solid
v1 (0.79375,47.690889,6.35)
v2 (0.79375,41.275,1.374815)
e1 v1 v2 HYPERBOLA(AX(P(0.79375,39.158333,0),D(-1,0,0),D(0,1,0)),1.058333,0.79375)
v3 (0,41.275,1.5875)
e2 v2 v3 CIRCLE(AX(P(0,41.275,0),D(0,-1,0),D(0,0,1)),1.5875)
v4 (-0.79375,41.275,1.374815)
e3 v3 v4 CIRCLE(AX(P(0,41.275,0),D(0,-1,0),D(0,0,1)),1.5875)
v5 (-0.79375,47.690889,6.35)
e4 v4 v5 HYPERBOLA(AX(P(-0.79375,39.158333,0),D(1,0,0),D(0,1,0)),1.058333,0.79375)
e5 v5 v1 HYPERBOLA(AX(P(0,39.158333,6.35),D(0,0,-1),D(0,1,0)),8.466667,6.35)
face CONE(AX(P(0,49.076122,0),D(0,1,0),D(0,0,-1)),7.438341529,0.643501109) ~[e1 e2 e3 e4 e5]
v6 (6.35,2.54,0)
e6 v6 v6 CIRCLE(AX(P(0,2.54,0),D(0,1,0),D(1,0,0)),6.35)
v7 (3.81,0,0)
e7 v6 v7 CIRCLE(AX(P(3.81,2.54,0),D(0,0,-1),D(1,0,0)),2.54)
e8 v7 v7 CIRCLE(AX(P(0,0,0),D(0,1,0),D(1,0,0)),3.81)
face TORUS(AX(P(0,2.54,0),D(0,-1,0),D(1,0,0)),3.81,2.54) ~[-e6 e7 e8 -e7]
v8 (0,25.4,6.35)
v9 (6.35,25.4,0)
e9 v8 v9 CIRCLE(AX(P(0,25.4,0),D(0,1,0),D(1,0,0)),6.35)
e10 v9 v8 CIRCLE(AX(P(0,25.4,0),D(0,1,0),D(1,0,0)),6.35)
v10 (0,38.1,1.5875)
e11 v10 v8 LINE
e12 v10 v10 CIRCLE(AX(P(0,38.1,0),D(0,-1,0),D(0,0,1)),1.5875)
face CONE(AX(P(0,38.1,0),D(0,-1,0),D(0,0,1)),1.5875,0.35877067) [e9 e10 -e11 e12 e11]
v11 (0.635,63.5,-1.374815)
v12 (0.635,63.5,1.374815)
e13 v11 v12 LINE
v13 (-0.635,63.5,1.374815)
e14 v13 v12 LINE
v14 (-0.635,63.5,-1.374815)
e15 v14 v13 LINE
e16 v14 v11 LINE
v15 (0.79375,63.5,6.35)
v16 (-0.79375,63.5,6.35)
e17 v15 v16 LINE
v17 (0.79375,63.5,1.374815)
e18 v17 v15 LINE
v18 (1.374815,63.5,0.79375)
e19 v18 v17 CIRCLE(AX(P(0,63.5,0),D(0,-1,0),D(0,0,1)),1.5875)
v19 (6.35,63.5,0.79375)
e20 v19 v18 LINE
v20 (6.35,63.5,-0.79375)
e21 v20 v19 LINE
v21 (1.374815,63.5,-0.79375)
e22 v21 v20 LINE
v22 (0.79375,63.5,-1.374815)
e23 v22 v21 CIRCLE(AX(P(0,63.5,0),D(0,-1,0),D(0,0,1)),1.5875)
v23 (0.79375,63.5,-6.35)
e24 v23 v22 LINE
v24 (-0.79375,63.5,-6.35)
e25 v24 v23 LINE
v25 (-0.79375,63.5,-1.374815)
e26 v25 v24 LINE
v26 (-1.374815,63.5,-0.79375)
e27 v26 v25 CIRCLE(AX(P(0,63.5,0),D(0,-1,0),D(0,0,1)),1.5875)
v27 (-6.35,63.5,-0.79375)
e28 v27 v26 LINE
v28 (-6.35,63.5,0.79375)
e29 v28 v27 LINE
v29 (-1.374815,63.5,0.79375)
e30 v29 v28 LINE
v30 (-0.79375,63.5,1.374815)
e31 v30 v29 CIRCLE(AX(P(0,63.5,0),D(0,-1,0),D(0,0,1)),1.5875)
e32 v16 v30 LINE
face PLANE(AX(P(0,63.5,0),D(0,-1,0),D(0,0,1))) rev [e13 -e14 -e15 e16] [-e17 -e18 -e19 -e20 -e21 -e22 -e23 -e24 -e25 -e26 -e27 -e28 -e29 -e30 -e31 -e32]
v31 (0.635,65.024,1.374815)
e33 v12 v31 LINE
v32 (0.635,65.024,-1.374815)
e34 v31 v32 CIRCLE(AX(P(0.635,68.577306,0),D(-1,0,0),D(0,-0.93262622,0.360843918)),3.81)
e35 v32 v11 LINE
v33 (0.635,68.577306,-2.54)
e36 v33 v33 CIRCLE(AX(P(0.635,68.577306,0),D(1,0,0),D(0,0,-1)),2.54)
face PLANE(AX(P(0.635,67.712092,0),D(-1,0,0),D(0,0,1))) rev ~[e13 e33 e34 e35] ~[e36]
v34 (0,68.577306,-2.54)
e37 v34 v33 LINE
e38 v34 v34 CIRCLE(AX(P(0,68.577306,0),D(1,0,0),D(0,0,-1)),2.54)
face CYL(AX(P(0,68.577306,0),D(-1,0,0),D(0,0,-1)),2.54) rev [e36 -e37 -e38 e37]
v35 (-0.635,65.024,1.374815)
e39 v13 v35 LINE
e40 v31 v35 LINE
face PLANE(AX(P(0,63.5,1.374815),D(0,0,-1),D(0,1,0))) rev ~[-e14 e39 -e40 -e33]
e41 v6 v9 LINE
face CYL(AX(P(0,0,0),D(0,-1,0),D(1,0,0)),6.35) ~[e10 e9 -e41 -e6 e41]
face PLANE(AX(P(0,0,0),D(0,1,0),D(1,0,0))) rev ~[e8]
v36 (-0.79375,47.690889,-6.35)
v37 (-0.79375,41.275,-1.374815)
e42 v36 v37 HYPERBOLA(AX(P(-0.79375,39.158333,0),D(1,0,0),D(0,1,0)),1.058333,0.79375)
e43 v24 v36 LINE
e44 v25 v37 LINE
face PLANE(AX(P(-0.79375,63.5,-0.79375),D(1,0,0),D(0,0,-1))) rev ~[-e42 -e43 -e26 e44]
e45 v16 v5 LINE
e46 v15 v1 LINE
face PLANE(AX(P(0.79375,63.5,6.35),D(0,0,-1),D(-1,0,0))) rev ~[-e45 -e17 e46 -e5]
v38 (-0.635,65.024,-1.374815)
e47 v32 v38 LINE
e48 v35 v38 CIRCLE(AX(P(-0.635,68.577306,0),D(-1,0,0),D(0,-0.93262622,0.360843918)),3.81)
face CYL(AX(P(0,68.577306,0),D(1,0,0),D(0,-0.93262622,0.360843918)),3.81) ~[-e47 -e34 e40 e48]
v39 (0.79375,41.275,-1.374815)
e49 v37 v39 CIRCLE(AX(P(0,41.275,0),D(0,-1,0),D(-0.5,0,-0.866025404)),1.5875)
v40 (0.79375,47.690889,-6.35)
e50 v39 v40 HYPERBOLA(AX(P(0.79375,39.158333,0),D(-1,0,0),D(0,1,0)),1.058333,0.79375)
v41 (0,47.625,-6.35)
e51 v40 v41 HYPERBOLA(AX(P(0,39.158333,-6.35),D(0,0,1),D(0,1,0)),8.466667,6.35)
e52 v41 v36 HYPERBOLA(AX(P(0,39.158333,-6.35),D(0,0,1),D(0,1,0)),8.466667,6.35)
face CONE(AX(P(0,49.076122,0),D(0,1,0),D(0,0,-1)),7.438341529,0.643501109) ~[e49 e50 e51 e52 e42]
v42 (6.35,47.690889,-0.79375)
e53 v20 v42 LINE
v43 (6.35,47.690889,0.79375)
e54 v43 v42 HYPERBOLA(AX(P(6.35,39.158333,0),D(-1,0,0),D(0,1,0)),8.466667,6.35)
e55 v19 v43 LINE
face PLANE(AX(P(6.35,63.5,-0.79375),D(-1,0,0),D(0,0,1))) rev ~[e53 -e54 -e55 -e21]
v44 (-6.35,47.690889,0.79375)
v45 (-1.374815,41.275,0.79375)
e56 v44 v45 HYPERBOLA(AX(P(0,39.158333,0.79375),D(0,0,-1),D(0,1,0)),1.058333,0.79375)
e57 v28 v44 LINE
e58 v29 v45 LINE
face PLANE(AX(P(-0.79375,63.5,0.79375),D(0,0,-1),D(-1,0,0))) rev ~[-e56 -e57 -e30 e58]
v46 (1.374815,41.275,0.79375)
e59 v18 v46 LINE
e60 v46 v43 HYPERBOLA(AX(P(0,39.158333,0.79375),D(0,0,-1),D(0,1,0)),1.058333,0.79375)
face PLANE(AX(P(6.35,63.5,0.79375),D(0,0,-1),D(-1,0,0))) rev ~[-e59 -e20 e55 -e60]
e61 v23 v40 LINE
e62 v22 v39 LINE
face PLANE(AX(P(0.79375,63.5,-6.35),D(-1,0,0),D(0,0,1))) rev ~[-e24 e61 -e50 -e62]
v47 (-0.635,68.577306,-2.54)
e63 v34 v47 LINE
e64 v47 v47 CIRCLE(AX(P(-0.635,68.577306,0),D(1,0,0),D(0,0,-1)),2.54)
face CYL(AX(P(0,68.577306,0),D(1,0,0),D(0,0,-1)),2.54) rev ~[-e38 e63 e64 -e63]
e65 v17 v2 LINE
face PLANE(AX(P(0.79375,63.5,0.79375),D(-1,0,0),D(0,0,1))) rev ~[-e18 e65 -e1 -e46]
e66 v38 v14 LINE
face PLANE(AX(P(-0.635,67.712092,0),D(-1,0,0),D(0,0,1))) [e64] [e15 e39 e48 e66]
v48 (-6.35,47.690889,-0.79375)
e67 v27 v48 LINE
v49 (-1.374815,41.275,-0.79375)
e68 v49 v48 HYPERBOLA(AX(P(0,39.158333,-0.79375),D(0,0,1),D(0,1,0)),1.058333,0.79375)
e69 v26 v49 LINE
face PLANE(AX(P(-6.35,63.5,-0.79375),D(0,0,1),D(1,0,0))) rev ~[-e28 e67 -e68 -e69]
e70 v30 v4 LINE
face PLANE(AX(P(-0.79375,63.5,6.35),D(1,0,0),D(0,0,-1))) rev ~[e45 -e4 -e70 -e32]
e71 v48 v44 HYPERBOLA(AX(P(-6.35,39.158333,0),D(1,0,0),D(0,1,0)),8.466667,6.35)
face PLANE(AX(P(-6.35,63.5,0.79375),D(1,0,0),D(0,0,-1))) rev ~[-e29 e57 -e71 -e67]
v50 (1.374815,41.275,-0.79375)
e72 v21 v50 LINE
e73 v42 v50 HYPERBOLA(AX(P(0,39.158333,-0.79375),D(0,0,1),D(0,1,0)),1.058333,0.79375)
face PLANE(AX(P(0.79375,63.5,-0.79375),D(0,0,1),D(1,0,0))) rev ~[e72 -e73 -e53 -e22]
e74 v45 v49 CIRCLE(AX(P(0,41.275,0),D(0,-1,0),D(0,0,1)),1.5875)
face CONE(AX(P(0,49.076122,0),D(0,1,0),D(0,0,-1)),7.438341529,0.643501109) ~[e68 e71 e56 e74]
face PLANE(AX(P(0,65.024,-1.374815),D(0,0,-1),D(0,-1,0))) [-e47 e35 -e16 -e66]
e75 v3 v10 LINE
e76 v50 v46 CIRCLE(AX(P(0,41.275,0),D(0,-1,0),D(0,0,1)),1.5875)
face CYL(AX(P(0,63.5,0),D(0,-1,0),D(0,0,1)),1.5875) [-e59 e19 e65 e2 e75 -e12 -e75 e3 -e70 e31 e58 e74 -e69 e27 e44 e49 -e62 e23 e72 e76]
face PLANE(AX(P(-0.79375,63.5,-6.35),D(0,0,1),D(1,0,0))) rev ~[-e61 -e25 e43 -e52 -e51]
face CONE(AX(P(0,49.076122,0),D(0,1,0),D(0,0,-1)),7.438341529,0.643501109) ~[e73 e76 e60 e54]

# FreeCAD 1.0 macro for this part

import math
import FreeCAD as App
import Part
import Sketcher
Q = App.Units.Quantity


def edges_at(feature, points):
    """Names of the edges that pass closest to the given points."""
    edges = feature.Shape.Edges
    near = lambda p: min(range(len(edges)), key=lambda i: edges[i].distToShape(Part.Vertex(*p))[0])
    return sorted({f"Edge{near(p) + 1}" for p in points})


def add_polygon(sketch, points):
    """Adds a closed chain of lines whose ends are joined by coincident constraints."""
    first, n = sketch.GeometryCount, len(points)
    for a, b in zip(points, points[1:] + points[:1]):
        sketch.addGeometry(Part.LineSegment(App.Vector(*a, 0), App.Vector(*b, 0)), False)
    for i in range(n):
        sketch.addConstraint(Sketcher.Constraint("Coincident", first + i, 2, first + (i + 1) % n, 1))

doc = App.newDocument("Part")
body = doc.addObject("PartDesign::Body", "Body")

sketch1 = body.newObject("Sketcher::SketchObject", "Sketch")
sketch1.AttachmentSupport = (doc.getObject("XZ_Plane"), [""])
sketch1.MapMode = "FlatFace"
sketch1.addGeometry(Part.Circle(App.Vector(0, 0, 0), App.Vector(0, 0, 1), 6), False)
sketch1.addConstraint(Sketcher.Constraint("Coincident", 0, 3, -1, 1))
sketch1.addConstraint(Sketcher.Constraint("Diameter", 0, Q("0.5 in")))
pad1 = body.newObject("PartDesign::Pad", "Pad")
pad1.Profile = sketch1
pad1.Length = Q("1 in")
pad1.Reversed = True
doc.recompute()

fillet = body.newObject("PartDesign::Fillet", "Fillet")
fillet.Base = (pad1, edges_at(pad1, [(-6.35, 0, 0)]))
fillet.Radius = Q("0.1 in")

sketch2 = body.newObject("Sketcher::SketchObject", "Sketch001")
sketch2.AttachmentSupport = (doc.getObject("YZ_Plane"), [""])
sketch2.MapMode = "FlatFace"
add_polygon(sketch2, [(25.4, 6.3), (25.4, 0), (63.5, 0), (63.5, 1.6), (38.1, 1.6)])
sketch2.addConstraint(Sketcher.Constraint("Vertical", 0))
sketch2.addConstraint(Sketcher.Constraint("Horizontal", 1))
sketch2.addConstraint(Sketcher.Constraint("Vertical", 2))
sketch2.addConstraint(Sketcher.Constraint("Horizontal", 3))
sketch2.addConstraint(Sketcher.Constraint("PointOnObject", 0, 2, -1))
sketch2.addConstraint(Sketcher.Constraint("DistanceX", 3, 2, 3, 1, Q("1 in")))
sketch2.addConstraint(Sketcher.Constraint("DistanceX", 1, 1, 1, 2, Q("1.5 in")))
sketch2.addConstraint(Sketcher.Constraint("DistanceX", -1, 1, 0, 2, Q("1 in")))
sketch2.addConstraint(Sketcher.Constraint("DistanceY", 0, 2, 0, 1, Q("0.25 in")))
sketch2.addConstraint(Sketcher.Constraint("DistanceY", 2, 1, 2, 2, Q("0.0625 in")))
revolution = body.newObject("PartDesign::Revolution", "Revolution")
revolution.Profile = sketch2
revolution.ReferenceAxis = (sketch2, ["H_Axis"])
revolution.Angle = 360

sketch3 = body.newObject("Sketcher::SketchObject", "Sketch002")
sketch3.AttachmentSupport = (doc.getObject("XZ_Plane"), [""])
sketch3.MapMode = "FlatFace"
sketch3.AttachmentOffset = App.Placement(App.Vector(0, 0, -2.5 * 25.4), App.Rotation())
add_polygon(sketch3, [(-0.8, -6.3), (-0.8, -0.8), (-6.3, -0.8), (-6.3, 0.8), (-0.8, 0.8), (-0.8, 6.3), (0.8, 6.3), (0.8, 0.8), (6.3, 0.8), (6.3, -0.8), (0.8, -0.8), (0.8, -6.3)])
sketch3.addConstraint(Sketcher.Constraint("Vertical", 0))
sketch3.addConstraint(Sketcher.Constraint("Horizontal", 1))
sketch3.addConstraint(Sketcher.Constraint("Vertical", 2))
sketch3.addConstraint(Sketcher.Constraint("Horizontal", 3))
sketch3.addConstraint(Sketcher.Constraint("Vertical", 4))
sketch3.addConstraint(Sketcher.Constraint("Horizontal", 5))
sketch3.addConstraint(Sketcher.Constraint("Vertical", 6))
sketch3.addConstraint(Sketcher.Constraint("Horizontal", 7))
sketch3.addConstraint(Sketcher.Constraint("Vertical", 8))
sketch3.addConstraint(Sketcher.Constraint("Horizontal", 9))
sketch3.addConstraint(Sketcher.Constraint("Vertical", 10))
sketch3.addConstraint(Sketcher.Constraint("Horizontal", 11))
sketch3.addConstraint(Sketcher.Constraint("Symmetric", 0, 2, 6, 2, -1, 1))
sketch3.addConstraint(Sketcher.Constraint("Symmetric", 2, 2, 8, 2, -1, 1))
sketch3.addConstraint(Sketcher.Constraint("Symmetric", 4, 2, 10, 2, -1, 1))
sketch3.addConstraint(Sketcher.Constraint("Symmetric", 3, 2, 6, 2, -2))
sketch3.addConstraint(Sketcher.Constraint("Equal", 9, 0))
sketch3.addConstraint(Sketcher.Constraint("Equal", 11, 2))
sketch3.addConstraint(Sketcher.Constraint("DistanceX", 1, 2, 1, 1, Q("0.21875 in")))
sketch3.addConstraint(Sketcher.Constraint("DistanceX", 5, 1, 5, 2, Q("0.0625 in")))
pad2 = body.newObject("PartDesign::Pad", "Pad001")
pad2.Profile = sketch3
pad2.Length = Q("0.875 in")

sketch4 = body.newObject("Sketcher::SketchObject", "Sketch003")
sketch4.AttachmentSupport = (doc.getObject("YZ_Plane"), [""])
sketch4.MapMode = "FlatFace"
add_polygon(sketch4, [(49, -7), (41, -2), (41, -7)])
sketch4.addConstraint(Sketcher.Constraint("Vertical", 1))
sketch4.addConstraint(Sketcher.Constraint("Horizontal", 2))
sketch4.addConstraint(Sketcher.Constraint("DistanceX", -1, 1, 0, 2, Q("1.625 in")))
sketch4.addConstraint(Sketcher.Constraint("DistanceY", 0, 2, -1, 1, Q("0.0625 in")))
sketch4.addConstraint(Sketcher.Constraint("DistanceY", 1, 2, 1, 1, Q("5.850842 mm")))
sketch4.addConstraint(Sketcher.Constraint("DistanceX", 2, 1, 2, 2, Q("7.801122 mm")))
groove = body.newObject("PartDesign::Groove", "Groove")
groove.Profile = sketch4
groove.ReferenceAxis = (sketch4, ["H_Axis"])
groove.Angle = 360

sketch5 = body.newObject("Sketcher::SketchObject", "Sketch004")
sketch5.AttachmentSupport = (doc.getObject("YZ_Plane"), [""])
sketch5.MapMode = "FlatFace"
sketch5.addGeometry(Part.LineSegment(App.Vector(65, 1.4, 0), App.Vector(63.5, 1.4, 0)), False)
sketch5.addGeometry(Part.LineSegment(App.Vector(63.5, 1.4, 0), App.Vector(63.5, -1.4, 0)), False)
sketch5.addGeometry(Part.LineSegment(App.Vector(63.5, -1.4, 0), App.Vector(65, -1.4, 0)), False)
sketch5.addGeometry(Part.ArcOfCircle(Part.Circle(App.Vector(68.6, 0, 0), App.Vector(0, 0, 1), 3.8), math.radians(-159), math.radians(159)), False)
sketch5.addGeometry(Part.Circle(App.Vector(68.6, 0, 0), App.Vector(0, 0, 1), 2.5), False)
sketch5.addConstraint(Sketcher.Constraint("Coincident", 0, 2, 1, 1))
sketch5.addConstraint(Sketcher.Constraint("Coincident", 1, 2, 2, 1))
sketch5.addConstraint(Sketcher.Constraint("Coincident", 2, 2, 3, 1))
sketch5.addConstraint(Sketcher.Constraint("Coincident", 3, 2, 0, 1))
sketch5.addConstraint(Sketcher.Constraint("Horizontal", 0))
sketch5.addConstraint(Sketcher.Constraint("Vertical", 1))
sketch5.addConstraint(Sketcher.Constraint("Horizontal", 2))
sketch5.addConstraint(Sketcher.Constraint("Coincident", 4, 3, 3, 3))
sketch5.addConstraint(Sketcher.Constraint("Symmetric", 2, 2, 3, 2, -1))
sketch5.addConstraint(Sketcher.Constraint("Diameter", 4, Q("0.2 in")))
sketch5.addConstraint(Sketcher.Constraint("Radius", 3, Q("0.15 in")))
sketch5.addConstraint(Sketcher.Constraint("DistanceX", 0, 2, 0, 1, Q("0.06 in")))
sketch5.addConstraint(Sketcher.Constraint("DistanceX", -1, 1, 0, 2, Q("2.5 in")))
sketch5.addConstraint(Sketcher.Constraint("DistanceY", 1, 2, 1, 1, Q("2.749631 mm")))
pad3 = body.newObject("PartDesign::Pad", "Pad002")
pad3.Profile = sketch5
pad3.Type = "TwoLengths"
pad3.Length = Q("0.025 in")
pad3.Length2 = Q("0.025 in")

doc.recompute()
